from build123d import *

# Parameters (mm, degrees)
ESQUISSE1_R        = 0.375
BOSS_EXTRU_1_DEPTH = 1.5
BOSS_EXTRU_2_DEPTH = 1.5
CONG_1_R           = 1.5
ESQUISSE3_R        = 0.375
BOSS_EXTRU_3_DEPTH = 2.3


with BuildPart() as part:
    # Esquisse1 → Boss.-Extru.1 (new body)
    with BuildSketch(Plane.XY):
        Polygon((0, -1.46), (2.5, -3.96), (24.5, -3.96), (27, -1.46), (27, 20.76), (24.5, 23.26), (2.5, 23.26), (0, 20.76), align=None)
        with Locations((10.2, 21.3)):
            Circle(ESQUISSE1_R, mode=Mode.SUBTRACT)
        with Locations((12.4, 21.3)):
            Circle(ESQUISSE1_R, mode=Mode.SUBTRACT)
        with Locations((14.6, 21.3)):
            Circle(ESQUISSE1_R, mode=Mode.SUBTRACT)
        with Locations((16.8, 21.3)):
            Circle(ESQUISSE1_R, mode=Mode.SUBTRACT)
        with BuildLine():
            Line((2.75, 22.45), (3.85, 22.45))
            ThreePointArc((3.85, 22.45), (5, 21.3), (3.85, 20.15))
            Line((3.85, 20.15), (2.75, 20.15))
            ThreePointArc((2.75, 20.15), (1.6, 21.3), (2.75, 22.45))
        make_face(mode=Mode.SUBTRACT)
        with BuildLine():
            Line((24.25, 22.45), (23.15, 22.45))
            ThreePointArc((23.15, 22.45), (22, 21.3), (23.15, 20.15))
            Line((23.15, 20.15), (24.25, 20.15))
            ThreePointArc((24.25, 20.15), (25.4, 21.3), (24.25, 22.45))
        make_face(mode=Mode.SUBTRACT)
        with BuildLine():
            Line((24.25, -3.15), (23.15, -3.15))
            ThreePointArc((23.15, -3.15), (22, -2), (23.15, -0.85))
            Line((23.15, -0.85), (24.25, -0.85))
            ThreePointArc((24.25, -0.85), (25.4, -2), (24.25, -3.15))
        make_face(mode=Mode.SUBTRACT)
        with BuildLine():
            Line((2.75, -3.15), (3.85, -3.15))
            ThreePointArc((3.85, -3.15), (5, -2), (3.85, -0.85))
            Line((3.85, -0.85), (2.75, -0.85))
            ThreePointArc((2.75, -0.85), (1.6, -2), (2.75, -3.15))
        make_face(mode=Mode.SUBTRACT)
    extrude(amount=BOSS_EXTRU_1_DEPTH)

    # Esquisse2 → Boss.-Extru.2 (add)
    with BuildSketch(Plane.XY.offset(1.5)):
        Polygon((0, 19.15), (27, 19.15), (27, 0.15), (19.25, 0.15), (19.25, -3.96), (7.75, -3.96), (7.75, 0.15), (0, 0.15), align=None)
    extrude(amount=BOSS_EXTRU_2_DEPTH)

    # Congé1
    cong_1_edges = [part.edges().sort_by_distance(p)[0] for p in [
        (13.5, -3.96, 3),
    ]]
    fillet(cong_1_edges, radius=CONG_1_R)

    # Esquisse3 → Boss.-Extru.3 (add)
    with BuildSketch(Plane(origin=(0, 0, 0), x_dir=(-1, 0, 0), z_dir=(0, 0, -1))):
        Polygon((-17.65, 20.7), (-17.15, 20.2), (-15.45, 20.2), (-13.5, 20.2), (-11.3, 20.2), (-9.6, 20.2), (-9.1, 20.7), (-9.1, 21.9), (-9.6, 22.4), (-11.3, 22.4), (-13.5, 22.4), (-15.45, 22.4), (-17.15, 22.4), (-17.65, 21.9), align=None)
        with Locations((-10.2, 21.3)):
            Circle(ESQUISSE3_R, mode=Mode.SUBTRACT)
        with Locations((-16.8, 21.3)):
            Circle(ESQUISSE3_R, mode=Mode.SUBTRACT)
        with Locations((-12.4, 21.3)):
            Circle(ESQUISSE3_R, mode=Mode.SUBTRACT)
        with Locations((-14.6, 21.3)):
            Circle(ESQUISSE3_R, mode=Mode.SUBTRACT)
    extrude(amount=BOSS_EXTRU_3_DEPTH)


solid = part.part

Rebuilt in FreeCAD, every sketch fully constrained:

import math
import FreeCAD as App
import Part
import Sketcher

V = App.Vector
Q = App.Units.Quantity


def edges_at(feature, points):
    """Names of the edges that pass closest to the given points."""
    edges = feature.Shape.Edges
    near = lambda p: min(range(len(edges)), key=lambda i: edges[i].distToShape(Part.Vertex(*p))[0])
    return sorted({f"Edge{near(p) + 1}" for p in points})


def add_polygon(sketch, points):
    """Adds a closed chain of lines whose ends are joined by coincident constraints."""
    first, n = sketch.GeometryCount, len(points)
    for a, b in zip(points, points[1:] + points[:1]):
        sketch.addGeometry(Part.LineSegment(App.Vector(*a, 0), App.Vector(*b, 0)), False)
    for i in range(n):
        sketch.addConstraint(Sketcher.Constraint("Coincident", first + i, 2, first + (i + 1) % n, 1))

doc = App.newDocument("Part")
body = doc.addObject("PartDesign::Body", "Body")

sketch1 = body.newObject("Sketcher::SketchObject", "Sketch")
sketch1.AttachmentSupport = (doc.getObject("XY_Plane"), [""])
sketch1.MapMode = "FlatFace"
add_polygon(sketch1, [(0, -1.46), (2.5, -3.96), (24.5, -3.96), (27, -1.46), (27, 20.76), (24.5, 23.26), (2.5, 23.26), (0, 20.76)])
sketch1.addGeometry(Part.LineSegment(V(3.85, -3.15, 0), V(2.75, -3.15, 0)), False)
sketch1.addGeometry(Part.ArcOfCircle(Part.Circle(V(2.75, -2, 0), V(0, 0, 1), 1.15), math.radians(90), math.radians(270)), False)
sketch1.addGeometry(Part.LineSegment(V(2.75, -0.85, 0), V(3.85, -0.85, 0)), False)
sketch1.addGeometry(Part.ArcOfCircle(Part.Circle(V(3.85, -2, 0), V(0, 0, 1), 1.15), math.radians(-90), math.radians(90)), False)
sketch1.addGeometry(Part.ArcOfCircle(Part.Circle(V(24.25, -2, 0), V(0, 0, 1), 1.15), math.radians(-90), math.radians(90)), False)
sketch1.addGeometry(Part.LineSegment(V(24.25, -3.15, 0), V(23.15, -3.15, 0)), False)
sketch1.addGeometry(Part.ArcOfCircle(Part.Circle(V(23.15, -2, 0), V(0, 0, 1), 1.15), math.radians(90), math.radians(270)), False)
sketch1.addGeometry(Part.LineSegment(V(23.15, -0.85, 0), V(24.25, -0.85, 0)), False)
sketch1.addGeometry(Part.ArcOfCircle(Part.Circle(V(2.75, 21.3, 0), V(0, 0, 1), 1.15), math.radians(90), math.radians(270)), False)
sketch1.addGeometry(Part.LineSegment(V(2.75, 22.45, 0), V(3.85, 22.45, 0)), False)
sketch1.addGeometry(Part.ArcOfCircle(Part.Circle(V(3.85, 21.3, 0), V(0, 0, 1), 1.15), math.radians(-90), math.radians(90)), False)
sketch1.addGeometry(Part.LineSegment(V(3.85, 20.15, 0), V(2.75, 20.15, 0)), False)
sketch1.addGeometry(Part.Circle(V(10.2, 21.3, 0), V(0, 0, 1), 0.375), False)
sketch1.addGeometry(Part.Circle(V(12.4, 21.3, 0), V(0, 0, 1), 0.375), False)
sketch1.addGeometry(Part.Circle(V(14.6, 21.3, 0), V(0, 0, 1), 0.375), False)
sketch1.addGeometry(Part.Circle(V(16.8, 21.3, 0), V(0, 0, 1), 0.375), False)
sketch1.addGeometry(Part.LineSegment(V(23.15, 22.45, 0), V(24.25, 22.45, 0)), False)
sketch1.addGeometry(Part.ArcOfCircle(Part.Circle(V(24.25, 21.3, 0), V(0, 0, 1), 1.15), math.radians(-90), math.radians(90)), False)
sketch1.addGeometry(Part.LineSegment(V(24.25, 20.15, 0), V(23.15, 20.15, 0)), False)
sketch1.addGeometry(Part.ArcOfCircle(Part.Circle(V(23.15, 21.3, 0), V(0, 0, 1), 1.15), math.radians(90), math.radians(270)), False)
sketch1.addConstraint(Sketcher.Constraint("Tangent", 8, 2, 9, 2))
sketch1.addConstraint(Sketcher.Constraint("Tangent", 9, 1, 10, 1))
sketch1.addConstraint(Sketcher.Constraint("Tangent", 10, 2, 11, 2))
sketch1.addConstraint(Sketcher.Constraint("Tangent", 11, 1, 8, 1))
sketch1.addConstraint(Sketcher.Constraint("Tangent", 12, 1, 13, 1))
sketch1.addConstraint(Sketcher.Constraint("Tangent", 13, 2, 14, 2))
sketch1.addConstraint(Sketcher.Constraint("Tangent", 14, 1, 15, 1))
sketch1.addConstraint(Sketcher.Constraint("Tangent", 15, 2, 12, 2))
sketch1.addConstraint(Sketcher.Constraint("Tangent", 16, 1, 17, 1))
sketch1.addConstraint(Sketcher.Constraint("Tangent", 17, 2, 18, 2))
sketch1.addConstraint(Sketcher.Constraint("Tangent", 18, 1, 19, 1))
sketch1.addConstraint(Sketcher.Constraint("Tangent", 19, 2, 16, 2))
sketch1.addConstraint(Sketcher.Constraint("Tangent", 24, 2, 25, 2))
sketch1.addConstraint(Sketcher.Constraint("Tangent", 25, 1, 26, 1))
sketch1.addConstraint(Sketcher.Constraint("Tangent", 26, 2, 27, 2))
sketch1.addConstraint(Sketcher.Constraint("Tangent", 27, 1, 24, 1))
sketch1.addConstraint(Sketcher.Constraint("Horizontal", 1))
sketch1.addConstraint(Sketcher.Constraint("Vertical", 3))
sketch1.addConstraint(Sketcher.Constraint("Horizontal", 5))
sketch1.addConstraint(Sketcher.Constraint("Vertical", 7))
sketch1.addConstraint(Sketcher.Constraint("Horizontal", 8))
sketch1.addConstraint(Sketcher.Constraint("Horizontal", 10))
sketch1.addConstraint(Sketcher.Constraint("Horizontal", 13))
sketch1.addConstraint(Sketcher.Constraint("Horizontal", 15))
sketch1.addConstraint(Sketcher.Constraint("Horizontal", 17))
sketch1.addConstraint(Sketcher.Constraint("Horizontal", 19))
sketch1.addConstraint(Sketcher.Constraint("Horizontal", 24))
sketch1.addConstraint(Sketcher.Constraint("Horizontal", 26))
sketch1.addConstraint(Sketcher.Constraint("Equal", 11, 12))
sketch1.addConstraint(Sketcher.Constraint("Equal", 14, 16))
sketch1.addConstraint(Sketcher.Constraint("Equal", 20, 21))
sketch1.addConstraint(Sketcher.Constraint("Equal", 21, 22))
sketch1.addConstraint(Sketcher.Constraint("Equal", 22, 23))
sketch1.addConstraint(Sketcher.Constraint("Equal", 18, 25))
sketch1.addConstraint(Sketcher.Constraint("PointOnObject", 6, 2, -2))
sketch1.addConstraint(Sketcher.Constraint("Perpendicular", 0, 2))
sketch1.addConstraint(Sketcher.Constraint("Perpendicular", 2, 4))
sketch1.addConstraint(Sketcher.Constraint("Perpendicular", 4, 6))
sketch1.addConstraint(Sketcher.Constraint("Horizontal", 11, 3, 12, 3))
sketch1.addConstraint(Sketcher.Constraint("Horizontal", 18, 3, 20, 3))
sketch1.addConstraint(Sketcher.Constraint("Horizontal", 20, 3, 21, 3))
sketch1.addConstraint(Sketcher.Constraint("Horizontal", 21, 3, 22, 3))
sketch1.addConstraint(Sketcher.Constraint("Horizontal", 22, 3, 23, 3))
sketch1.addConstraint(Sketcher.Constraint("Horizontal", 23, 3, 25, 3))
sketch1.addConstraint(Sketcher.Constraint("Horizontal", 3, 2, 6, 2))
sketch1.addConstraint(Sketcher.Constraint("Horizontal", 2, 2, 7, 2))
sketch1.addConstraint(Sketcher.Constraint("Vertical", 9, 3, 16, 3))
sketch1.addConstraint(Sketcher.Constraint("Vertical", 11, 3, 18, 3))
sketch1.addConstraint(Sketcher.Constraint("Vertical", 12, 3, 25, 3))
sketch1.addConstraint(Sketcher.Constraint("Vertical", 14, 3, 27, 3))
sketch1.addConstraint(Sketcher.Constraint("Vertical", 1, 2, 4, 2))
sketch1.addConstraint(Sketcher.Constraint("Vertical", 0, 2, 5, 2))
sketch1.addConstraint(Sketcher.Constraint("Equal", 10, 13))
sketch1.addConstraint(Sketcher.Constraint("Diameter", 20, Q("0.75 mm")))
sketch1.addConstraint(Sketcher.Constraint("DistanceX", 1, 1, 1, 2, Q("22 mm")))
sketch1.addConstraint(Sketcher.Constraint("Radius", 9, Q("1.15 mm")))
sketch1.addConstraint(Sketcher.Constraint("DistanceX", 8, 2, 8, 1, Q("1.1 mm")))
sketch1.addConstraint(Sketcher.Constraint("DistanceY", 9, 3, -1, 1, Q("2 mm")))
sketch1.addConstraint(Sketcher.Constraint("DistanceX", -1, 1, 2, 2, Q("27 mm")))
sketch1.addConstraint(Sketcher.Constraint("DistanceY", 3, 1, 3, 2, Q("22.22 mm")))
sketch1.addConstraint(Sketcher.Constraint("DistanceY", -1, 1, 16, 3, Q("21.3 mm")))
sketch1.addConstraint(Sketcher.Constraint("DistanceX", -1, 1, 20, 3, Q("10.2 mm")))
sketch1.addConstraint(Sketcher.Constraint("DistanceX", -1, 1, 21, 3, Q("12.4 mm")))
sketch1.addConstraint(Sketcher.Constraint("DistanceX", -1, 1, 22, 3, Q("14.6 mm")))
sketch1.addConstraint(Sketcher.Constraint("DistanceX", -1, 1, 23, 3, Q("16.8 mm")))
sketch1.addConstraint(Sketcher.Constraint("DistanceX", 11, 3, 12, 3, Q("20.4 mm")))
sketch1.addConstraint(Sketcher.Constraint("DistanceX", -1, 1, 9, 3, Q("2.75 mm")))
sketch1.addConstraint(Sketcher.Constraint("DistanceY", 0, 2, -1, 1, Q("3.96 mm")))
pad1 = body.newObject("PartDesign::Pad", "Pad")
pad1.Profile = sketch1
pad1.Length = 1.5

sketch2 = body.newObject("Sketcher::SketchObject", "Sketch001")
sketch2.AttachmentSupport = (doc.getObject("XY_Plane"), [""])
sketch2.MapMode = "FlatFace"
sketch2.AttachmentOffset = App.Placement(V(0, 0, 1.5), App.Rotation())
add_polygon(sketch2, [(27, 19.15), (0, 19.15), (0, 0.15), (7.75, 0.15), (7.75, -3.96), (19.25, -3.96), (19.25, 0.15), (27, 0.15)])
sketch2.addConstraint(Sketcher.Constraint("Horizontal", 0))
sketch2.addConstraint(Sketcher.Constraint("Vertical", 1))
sketch2.addConstraint(Sketcher.Constraint("Horizontal", 2))
sketch2.addConstraint(Sketcher.Constraint("Vertical", 3))
sketch2.addConstraint(Sketcher.Constraint("Horizontal", 4))
sketch2.addConstraint(Sketcher.Constraint("Vertical", 5))
sketch2.addConstraint(Sketcher.Constraint("Horizontal", 6))
sketch2.addConstraint(Sketcher.Constraint("Vertical", 7))
sketch2.addConstraint(Sketcher.Constraint("PointOnObject", 0, 2, -2))
sketch2.addConstraint(Sketcher.Constraint("Horizontal", 2, 2, 5, 2))
sketch2.addConstraint(Sketcher.Constraint("Equal", 2, 6))
sketch2.addConstraint(Sketcher.Constraint("DistanceX", 0, 2, 0, 1, Q("27 mm")))
sketch2.addConstraint(Sketcher.Constraint("DistanceY", 1, 2, 1, 1, Q("19 mm")))
sketch2.addConstraint(Sketcher.Constraint("DistanceX", 4, 1, 4, 2, Q("11.5 mm")))
sketch2.addConstraint(Sketcher.Constraint("DistanceY", 3, 2, 3, 1, Q("4.11 mm")))
sketch2.addConstraint(Sketcher.Constraint("DistanceY", -1, 1, 0, 2, Q("19.15 mm")))
pad2 = body.newObject("PartDesign::Pad", "Pad001")
pad2.Profile = sketch2
pad2.Length = 1.5
doc.recompute()

fillet = body.newObject("PartDesign::Fillet", "Fillet")
fillet.Base = (pad2, edges_at(pad2, [(13.5, -3.96, 3)]))
fillet.Radius = 1.5

sketch3 = body.newObject("Sketcher::SketchObject", "Sketch002")
sketch3.AttachmentSupport = (doc.getObject("XY_Plane"), [""])
sketch3.MapMode = "FlatFace"
add_polygon(sketch3, [(17.65, 20.7), (17.15, 20.2), (9.6, 20.2), (9.1, 20.7), (9.1, 21.9), (9.6, 22.4), (17.15, 22.4), (17.65, 21.9)])
sketch3.addGeometry(Part.Circle(V(16.8, 21.3, 0), V(0, 0, 1), 0.375), False)
sketch3.addGeometry(Part.Circle(V(14.6, 21.3, 0), V(0, 0, 1), 0.375), False)
sketch3.addGeometry(Part.Circle(V(12.4, 21.3, 0), V(0, 0, 1), 0.375), False)
sketch3.addGeometry(Part.Circle(V(10.2, 21.3, 0), V(0, 0, 1), 0.375), False)
sketch3.addConstraint(Sketcher.Constraint("Horizontal", 1))
sketch3.addConstraint(Sketcher.Constraint("Vertical", 3))
sketch3.addConstraint(Sketcher.Constraint("Horizontal", 5))
sketch3.addConstraint(Sketcher.Constraint("Vertical", 7))
sketch3.addConstraint(Sketcher.Constraint("Equal", 8, 9))
sketch3.addConstraint(Sketcher.Constraint("Equal", 9, 10))
sketch3.addConstraint(Sketcher.Constraint("Equal", 10, 11))
sketch3.addConstraint(Sketcher.Constraint("Perpendicular", 0, 2))
sketch3.addConstraint(Sketcher.Constraint("Perpendicular", 2, 4))
sketch3.addConstraint(Sketcher.Constraint("Perpendicular", 4, 6))
sketch3.addConstraint(Sketcher.Constraint("Horizontal", 8, 3, 9, 3))
sketch3.addConstraint(Sketcher.Constraint("Horizontal", 9, 3, 10, 3))
sketch3.addConstraint(Sketcher.Constraint("Horizontal", 10, 3, 11, 3))
sketch3.addConstraint(Sketcher.Constraint("Horizontal", 3, 2, 6, 2))
sketch3.addConstraint(Sketcher.Constraint("Horizontal", 2, 2, 7, 2))
sketch3.addConstraint(Sketcher.Constraint("Vertical", 1, 2, 4, 2))
sketch3.addConstraint(Sketcher.Constraint("Vertical", 0, 2, 5, 2))
sketch3.addConstraint(Sketcher.Constraint("Diameter", 8, Q("0.75 mm")))
sketch3.addConstraint(Sketcher.Constraint("DistanceY", 3, 1, 3, 2, Q("1.2 mm")))
sketch3.addConstraint(Sketcher.Constraint("DistanceX", 1, 2, 9, 3, Q("5 mm")))
sketch3.addConstraint(Sketcher.Constraint("DistanceX", 1, 2, 1, 1, Q("7.55 mm")))
sketch3.addConstraint(Sketcher.Constraint("DistanceX", -1, 1, 8, 3, Q("16.8 mm")))
sketch3.addConstraint(Sketcher.Constraint("DistanceY", -1, 1, 8, 3, Q("21.3 mm")))
sketch3.addConstraint(Sketcher.Constraint("DistanceX", -1, 1, 9, 3, Q("14.6 mm")))
sketch3.addConstraint(Sketcher.Constraint("DistanceX", -1, 1, 10, 3, Q("12.4 mm")))
sketch3.addConstraint(Sketcher.Constraint("DistanceX", -1, 1, 11, 3, Q("10.2 mm")))
sketch3.addConstraint(Sketcher.Constraint("DistanceY", -1, 1, 0, 2, Q("20.2 mm")))
sketch3.addConstraint(Sketcher.Constraint("DistanceX", -1, 1, 2, 2, Q("9.1 mm")))
pad3 = body.newObject("PartDesign::Pad", "Pad002")
pad3.Profile = sketch3
pad3.Length = 2.3
pad3.Reversed = True

doc.recompute()
